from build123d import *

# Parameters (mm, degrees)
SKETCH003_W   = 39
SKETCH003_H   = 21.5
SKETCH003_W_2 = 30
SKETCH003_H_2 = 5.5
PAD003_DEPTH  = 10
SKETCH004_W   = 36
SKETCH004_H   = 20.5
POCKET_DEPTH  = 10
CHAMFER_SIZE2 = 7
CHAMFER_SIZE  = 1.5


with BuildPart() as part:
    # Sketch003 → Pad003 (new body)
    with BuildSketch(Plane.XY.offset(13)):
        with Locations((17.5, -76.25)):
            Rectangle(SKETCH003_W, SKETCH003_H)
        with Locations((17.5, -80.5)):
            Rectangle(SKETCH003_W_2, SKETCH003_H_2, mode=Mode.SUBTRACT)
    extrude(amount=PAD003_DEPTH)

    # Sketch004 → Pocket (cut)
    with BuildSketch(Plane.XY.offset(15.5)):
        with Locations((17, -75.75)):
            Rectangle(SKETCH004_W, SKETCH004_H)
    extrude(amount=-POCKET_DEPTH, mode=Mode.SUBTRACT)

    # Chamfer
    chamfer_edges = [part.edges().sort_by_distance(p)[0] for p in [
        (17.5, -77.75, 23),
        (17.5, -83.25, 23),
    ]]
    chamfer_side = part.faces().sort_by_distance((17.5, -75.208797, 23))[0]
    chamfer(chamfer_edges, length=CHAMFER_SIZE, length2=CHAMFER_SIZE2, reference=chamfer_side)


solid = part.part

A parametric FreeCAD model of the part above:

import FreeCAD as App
import Part
import Sketcher

V = App.Vector


def edges_at(feature, points):
    """Names of the edges that pass closest to the given points."""
    edges = feature.Shape.Edges
    near = lambda p: min(range(len(edges)), key=lambda i: edges[i].distToShape(Part.Vertex(*p))[0])
    return sorted({f"Edge{near(p) + 1}" for p in points})


def add_polygon(sketch, points):
    """Adds a closed chain of lines whose ends are joined by coincident constraints."""
    first, n = sketch.GeometryCount, len(points)
    for a, b in zip(points, points[1:] + points[:1]):
        sketch.addGeometry(Part.LineSegment(App.Vector(*a, 0), App.Vector(*b, 0)), False)
    for i in range(n):
        sketch.addConstraint(Sketcher.Constraint("Coincident", first + i, 2, first + (i + 1) % n, 1))

doc = App.newDocument("Part")
body = doc.addObject("PartDesign::Body", "Body")

# Sketch on XY plane
sketch1 = body.newObject("Sketcher::SketchObject", "Sketch")
sketch1.AttachmentSupport = (doc.getObject("XY_Plane"), [""])
sketch1.MapMode = "FlatFace"
sketch1.AttachmentOffset = App.Placement(V(0, 0, 13), App.Rotation())
add_polygon(sketch1, [(-2, -65.5), (-2, -87), (37, -87), (37, -65.5)])  # lines 0-3
add_polygon(sketch1, [(32.5, -83.25), (2.5, -83.25), (2.5, -77.75), (32.5, -77.75)])  # lines 4-7
sketch1.addConstraint(Sketcher.Constraint("Vertical", 0))
sketch1.addConstraint(Sketcher.Constraint("Horizontal", 1))
sketch1.addConstraint(Sketcher.Constraint("Vertical", 2))
sketch1.addConstraint(Sketcher.Constraint("Horizontal", 3))
sketch1.addConstraint(Sketcher.Constraint("Horizontal", 4))
sketch1.addConstraint(Sketcher.Constraint("Vertical", 5))
sketch1.addConstraint(Sketcher.Constraint("Horizontal", 6))
sketch1.addConstraint(Sketcher.Constraint("Vertical", 7))
sketch1.addConstraint(Sketcher.Constraint("DistanceX", 1, 1, 1, 2, 39.0))
sketch1.addConstraint(Sketcher.Constraint("DistanceX", 4, 2, 4, 1, 30.0))
sketch1.addConstraint(Sketcher.Constraint("DistanceY", 0, 2, 0, 1, 21.5))
sketch1.addConstraint(Sketcher.Constraint("DistanceY", 5, 1, 5, 2, 5.5))
sketch1.addConstraint(Sketcher.Constraint("DistanceX", 0, 2, -1, 1, 2.0))
sketch1.addConstraint(Sketcher.Constraint("DistanceY", 0, 2, -1, 1, 87.0))
sketch1.addConstraint(Sketcher.Constraint("DistanceX", -1, 1, 4, 2, 2.5))
sketch1.addConstraint(Sketcher.Constraint("DistanceY", 4, 2, -1, 1, 83.25))
pad1 = body.newObject("PartDesign::Pad", "Pad")
pad1.Profile = sketch1
pad1.Length = 10

# Sketch on XY plane
sketch2 = body.newObject("Sketcher::SketchObject", "Sketch001")
sketch2.AttachmentSupport = (doc.getObject("XY_Plane"), [""])
sketch2.MapMode = "FlatFace"
sketch2.AttachmentOffset = App.Placement(V(0, 0, 15.5), App.Rotation())
add_polygon(sketch2, [(-1, -65.5), (-1, -86), (35, -86), (35, -65.5)])  # lines 0-3
sketch2.addConstraint(Sketcher.Constraint("Vertical", 0))
sketch2.addConstraint(Sketcher.Constraint("Horizontal", 1))
sketch2.addConstraint(Sketcher.Constraint("Vertical", 2))
sketch2.addConstraint(Sketcher.Constraint("Horizontal", 3))
sketch2.addConstraint(Sketcher.Constraint("DistanceX", 1, 1, 1, 2, 36.0))
sketch2.addConstraint(Sketcher.Constraint("DistanceY", 0, 2, 0, 1, 20.5))
sketch2.addConstraint(Sketcher.Constraint("DistanceX", 0, 2, -1, 1, 1.0))
sketch2.addConstraint(Sketcher.Constraint("DistanceY", 0, 2, -1, 1, 86.0))
pocket1 = body.newObject("PartDesign::Pocket", "Pocket")
pocket1.Profile = sketch2
pocket1.Length = 10
doc.recompute()

chamfer = body.newObject("PartDesign::Chamfer", "Chamfer")
chamfer.Base = (pocket1, edges_at(pocket1, [(17.5, -77.75, 23), (17.5, -83.25, 23)]))
chamfer.ChamferType = "Two distances"
chamfer.Size = 1.5
chamfer.Size2 = 7

doc.recompute()
